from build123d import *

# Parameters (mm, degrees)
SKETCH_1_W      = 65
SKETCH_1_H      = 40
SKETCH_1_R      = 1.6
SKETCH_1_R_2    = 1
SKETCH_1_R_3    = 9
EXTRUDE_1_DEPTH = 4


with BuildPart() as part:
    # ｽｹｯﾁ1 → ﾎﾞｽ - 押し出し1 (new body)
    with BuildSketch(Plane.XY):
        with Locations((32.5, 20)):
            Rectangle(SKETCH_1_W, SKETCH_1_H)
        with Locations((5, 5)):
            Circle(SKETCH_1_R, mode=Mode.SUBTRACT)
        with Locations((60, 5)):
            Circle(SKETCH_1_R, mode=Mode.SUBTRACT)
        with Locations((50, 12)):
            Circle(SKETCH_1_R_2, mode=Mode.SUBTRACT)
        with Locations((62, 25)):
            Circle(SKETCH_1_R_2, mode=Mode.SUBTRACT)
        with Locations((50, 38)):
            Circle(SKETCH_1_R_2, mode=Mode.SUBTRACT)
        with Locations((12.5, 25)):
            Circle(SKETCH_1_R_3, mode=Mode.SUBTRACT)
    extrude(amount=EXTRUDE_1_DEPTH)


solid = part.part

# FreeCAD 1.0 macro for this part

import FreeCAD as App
import Part
import Sketcher

V = App.Vector
Q = App.Units.Quantity


def add_polygon(sketch, points):
    """Adds a closed chain of lines whose ends are joined by coincident constraints."""
    first, n = sketch.GeometryCount, len(points)
    for a, b in zip(points, points[1:] + points[:1]):
        sketch.addGeometry(Part.LineSegment(App.Vector(*a, 0), App.Vector(*b, 0)), False)
    for i in range(n):
        sketch.addConstraint(Sketcher.Constraint("Coincident", first + i, 2, first + (i + 1) % n, 1))

doc = App.newDocument("Part")
params = doc.addObject("Spreadsheet::Sheet", "Params")
for row, (alias, value) in enumerate([
    ("sketch1_diameter", "2 mm"),
    ("sketch1_diameter2", "18 mm"),
    ("sketch1_diameter3", "3.2 mm"),
    ("sketch1_width", "65 mm"),
    ("sketch1_height", "40 mm"),
    ("pad1_length", "4 mm"),
], start=1):
    params.set(f"A{row}", alias)
    params.set(f"B{row}", "=" + value)
    params.setAlias(f"B{row}", alias)

body = doc.addObject("PartDesign::Body", "Body")

sketch1 = body.newObject("Sketcher::SketchObject", "Sketch")
sketch1.AttachmentSupport = (doc.getObject("XY_Plane"), [""])
sketch1.MapMode = "FlatFace"
add_polygon(sketch1, [(0, 40), (0, 0), (65, 0), (65, 40)])
sketch1.addGeometry(Part.Circle(V(5, 5, 0), V(0, 0, 1), 1.6), False)
sketch1.addGeometry(Part.Circle(V(60, 5, 0), V(0, 0, 1), 1.6), False)
sketch1.addGeometry(Part.Circle(V(50, 12, 0), V(0, 0, 1), 1), False)
sketch1.addGeometry(Part.Circle(V(12.5, 25, 0), V(0, 0, 1), 9), False)
sketch1.addGeometry(Part.Circle(V(62, 25, 0), V(0, 0, 1), 1), False)
sketch1.addGeometry(Part.Circle(V(50, 38, 0), V(0, 0, 1), 1), False)
sketch1.addConstraint([
    Sketcher.Constraint("Vertical", 0),
    Sketcher.Constraint("Horizontal", 1),
    Sketcher.Constraint("Vertical", 2),
    Sketcher.Constraint("Horizontal", 3),
    Sketcher.Constraint("Coincident", 0, 2, -1, 1),
    Sketcher.Constraint("Equal", 4, 5),
    Sketcher.Constraint("Equal", 6, 8),
    Sketcher.Constraint("Equal", 8, 9),
    Sketcher.Constraint("Horizontal", 4, 3, 5, 3),
    Sketcher.Constraint("Horizontal", 7, 3, 8, 3),
    Sketcher.Constraint("Vertical", 6, 3, 9, 3),
    Sketcher.Constraint("Diameter", 6, Q("2 mm")),
    Sketcher.Constraint("Diameter", 7, Q("18 mm")),
    Sketcher.Constraint("Diameter", 4, Q("3.2 mm")),
    Sketcher.Constraint("DistanceX", 1, 1, 1, 2, Q("65 mm")),
    Sketcher.Constraint("DistanceY", 0, 2, 0, 1, Q("40 mm")),
    Sketcher.Constraint("DistanceX", -1, 1, 4, 3, Q("5 mm")),
    Sketcher.Constraint("DistanceY", -1, 1, 4, 3, Q("5 mm")),
    Sketcher.Constraint("DistanceX", -1, 1, 5, 3, Q("60 mm")),
    Sketcher.Constraint("DistanceX", -1, 1, 6, 3, Q("50 mm")),
    Sketcher.Constraint("DistanceY", -1, 1, 6, 3, Q("12 mm")),
    Sketcher.Constraint("DistanceY", -1, 1, 7, 3, Q("25 mm")),
    Sketcher.Constraint("DistanceX", -1, 1, 8, 3, Q("62 mm")),
    Sketcher.Constraint("DistanceY", -1, 1, 9, 3, Q("38 mm")),
    Sketcher.Constraint("DistanceX", -1, 1, 7, 3, Q("12.5 mm")),
])
sketch1.setExpression("Constraints[15]", "Params.sketch1_diameter")
sketch1.setExpression("Constraints[16]", "Params.sketch1_diameter2")
sketch1.setExpression("Constraints[17]", "Params.sketch1_diameter3")
sketch1.setExpression("Constraints[18]", "Params.sketch1_width")
sketch1.setExpression("Constraints[19]", "Params.sketch1_height")
pad1 = body.newObject("PartDesign::Pad", "Pad")
pad1.Profile = sketch1
pad1.setExpression("Length", "Params.pad1_length")

doc.recompute()
